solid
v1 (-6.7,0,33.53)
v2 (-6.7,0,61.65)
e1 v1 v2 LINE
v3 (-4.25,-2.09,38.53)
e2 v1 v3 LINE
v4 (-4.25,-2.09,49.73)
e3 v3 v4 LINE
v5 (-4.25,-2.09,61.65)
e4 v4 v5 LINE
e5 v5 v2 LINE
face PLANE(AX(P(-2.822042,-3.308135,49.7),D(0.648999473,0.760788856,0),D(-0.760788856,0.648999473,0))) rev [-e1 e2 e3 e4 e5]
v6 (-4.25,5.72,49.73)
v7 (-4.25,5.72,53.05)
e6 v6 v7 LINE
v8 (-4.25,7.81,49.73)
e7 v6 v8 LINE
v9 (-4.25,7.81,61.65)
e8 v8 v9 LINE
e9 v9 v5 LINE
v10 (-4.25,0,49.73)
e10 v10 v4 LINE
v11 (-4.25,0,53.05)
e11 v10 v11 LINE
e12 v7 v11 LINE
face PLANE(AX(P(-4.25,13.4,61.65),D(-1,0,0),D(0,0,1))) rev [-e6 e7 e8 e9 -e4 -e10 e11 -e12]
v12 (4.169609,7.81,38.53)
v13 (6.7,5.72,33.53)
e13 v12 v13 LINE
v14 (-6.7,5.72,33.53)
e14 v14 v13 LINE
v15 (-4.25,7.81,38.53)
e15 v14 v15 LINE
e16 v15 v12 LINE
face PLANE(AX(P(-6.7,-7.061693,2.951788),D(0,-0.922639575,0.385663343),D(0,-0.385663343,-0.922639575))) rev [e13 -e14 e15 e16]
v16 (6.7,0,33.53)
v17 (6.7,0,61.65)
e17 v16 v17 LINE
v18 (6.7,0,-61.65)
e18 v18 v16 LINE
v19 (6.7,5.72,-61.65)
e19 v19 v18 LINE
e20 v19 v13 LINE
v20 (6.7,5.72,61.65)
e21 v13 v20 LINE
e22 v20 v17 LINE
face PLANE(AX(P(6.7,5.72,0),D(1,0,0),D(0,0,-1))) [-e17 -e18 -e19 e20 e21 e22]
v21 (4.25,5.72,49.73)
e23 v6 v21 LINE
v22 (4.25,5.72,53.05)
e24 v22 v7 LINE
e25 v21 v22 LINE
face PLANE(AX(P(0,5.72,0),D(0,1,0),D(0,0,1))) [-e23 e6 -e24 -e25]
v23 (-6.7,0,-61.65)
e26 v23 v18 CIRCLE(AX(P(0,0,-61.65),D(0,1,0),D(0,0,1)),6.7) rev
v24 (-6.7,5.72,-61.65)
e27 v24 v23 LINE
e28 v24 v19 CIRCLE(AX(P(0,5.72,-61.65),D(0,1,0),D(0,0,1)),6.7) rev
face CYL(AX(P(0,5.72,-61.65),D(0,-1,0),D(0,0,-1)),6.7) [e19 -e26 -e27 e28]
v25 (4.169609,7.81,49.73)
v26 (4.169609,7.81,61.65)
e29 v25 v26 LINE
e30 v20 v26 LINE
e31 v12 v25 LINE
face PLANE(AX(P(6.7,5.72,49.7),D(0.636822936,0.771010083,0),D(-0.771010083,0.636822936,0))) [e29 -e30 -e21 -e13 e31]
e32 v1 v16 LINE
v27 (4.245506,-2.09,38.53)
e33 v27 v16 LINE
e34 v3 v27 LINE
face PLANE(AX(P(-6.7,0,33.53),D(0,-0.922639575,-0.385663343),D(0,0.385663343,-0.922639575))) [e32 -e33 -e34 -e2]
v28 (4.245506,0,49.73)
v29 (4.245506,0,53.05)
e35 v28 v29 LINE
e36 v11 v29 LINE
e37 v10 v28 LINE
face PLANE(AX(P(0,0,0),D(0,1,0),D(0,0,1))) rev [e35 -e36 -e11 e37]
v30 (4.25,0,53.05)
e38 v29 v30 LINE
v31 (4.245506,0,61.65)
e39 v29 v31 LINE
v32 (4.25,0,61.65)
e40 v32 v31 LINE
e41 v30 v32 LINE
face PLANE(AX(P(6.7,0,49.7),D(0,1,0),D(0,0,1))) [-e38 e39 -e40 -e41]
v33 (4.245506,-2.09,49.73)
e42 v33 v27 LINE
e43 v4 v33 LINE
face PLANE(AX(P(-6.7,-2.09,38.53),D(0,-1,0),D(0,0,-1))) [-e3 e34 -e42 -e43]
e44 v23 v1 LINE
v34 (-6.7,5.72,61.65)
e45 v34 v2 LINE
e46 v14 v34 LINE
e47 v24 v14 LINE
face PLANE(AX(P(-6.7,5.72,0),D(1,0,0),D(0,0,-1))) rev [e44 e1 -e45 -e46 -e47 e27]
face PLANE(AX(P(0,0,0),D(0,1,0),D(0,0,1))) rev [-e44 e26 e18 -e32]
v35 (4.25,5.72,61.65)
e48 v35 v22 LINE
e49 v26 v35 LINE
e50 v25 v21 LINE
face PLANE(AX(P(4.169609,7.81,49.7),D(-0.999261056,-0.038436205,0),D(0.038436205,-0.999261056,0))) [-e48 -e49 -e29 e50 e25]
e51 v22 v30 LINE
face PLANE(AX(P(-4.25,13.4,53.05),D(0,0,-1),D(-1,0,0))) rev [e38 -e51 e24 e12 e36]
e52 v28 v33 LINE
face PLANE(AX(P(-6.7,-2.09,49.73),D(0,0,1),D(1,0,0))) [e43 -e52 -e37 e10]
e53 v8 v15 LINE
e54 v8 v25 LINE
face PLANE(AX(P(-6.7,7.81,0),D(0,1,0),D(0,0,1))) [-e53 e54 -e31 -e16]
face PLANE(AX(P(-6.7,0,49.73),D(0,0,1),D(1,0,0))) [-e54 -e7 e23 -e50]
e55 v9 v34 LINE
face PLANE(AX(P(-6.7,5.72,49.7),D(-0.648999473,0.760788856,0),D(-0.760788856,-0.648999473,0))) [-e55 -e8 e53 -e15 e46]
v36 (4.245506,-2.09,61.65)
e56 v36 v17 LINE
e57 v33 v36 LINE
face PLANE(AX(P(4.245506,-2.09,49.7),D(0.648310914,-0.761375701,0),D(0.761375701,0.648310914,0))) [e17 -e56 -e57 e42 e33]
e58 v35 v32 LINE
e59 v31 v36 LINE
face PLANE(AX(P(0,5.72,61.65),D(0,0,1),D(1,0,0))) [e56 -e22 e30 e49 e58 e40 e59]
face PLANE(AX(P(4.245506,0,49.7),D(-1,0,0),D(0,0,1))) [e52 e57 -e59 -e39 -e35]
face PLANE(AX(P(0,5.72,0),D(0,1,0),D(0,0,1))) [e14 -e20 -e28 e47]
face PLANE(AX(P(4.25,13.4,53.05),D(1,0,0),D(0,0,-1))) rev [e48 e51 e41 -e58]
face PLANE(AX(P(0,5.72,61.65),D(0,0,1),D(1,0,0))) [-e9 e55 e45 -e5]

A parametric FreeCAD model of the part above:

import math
import FreeCAD as App
import Part
import Sketcher

doc = App.newDocument("Part")
params = doc.addObject("Spreadsheet::Sheet", "Params")
for row, (alias, value) in enumerate([
    ("sketch1_radius", "6.7 mm"),
    ("sketch1_height", "123.3 mm"),
    ("pad1_length", "5.72 mm"),
    ("sketch2_height", "16.2 mm"),
    ("sketch2_height2", "11.2 mm"),
    ("sketch2_width", "2.09 mm"),
    ("pad2_length", "13.4 mm"),
    ("sketch3_height", "16.2 mm"),
    ("sketch3_height2", "11.2 mm"),
    ("sketch3_width", "2.09 mm"),
    ("pad3_length", "13.4 mm"),
    ("sketch4_width", "8.5 mm"),
    ("sketch4_height", "8.6 mm"),
    ("pocket1_length", "13.4 mm"),
    ("sketch5_width", "2.45 mm"),
    ("sketch5_height", "2.09 mm"),
    ("pad4_length", "11.95 mm"),
    ("sketch6_width", "2.45 mm"),
    ("pad5_length", "11.95 mm"),
    ("sketch7_width", "2.45 mm"),
    ("sketch7_height", "2.09 mm"),
    ("pocket2_length", "16.5 mm"),
    ("sketch8_height", "2.09 mm"),
    ("pad6_length", "11.95 mm"),
    ("sketch9_height", "2.09 mm"),
    ("pocket3_length", "16.6 mm"),
    ("sketch10_height", "2.09 mm"),
    ("pocket4_length", "16.6 mm"),
    ("sketch11_width", "2.45 mm"),
    ("sketch11_height", "2.09 mm"),
    ("pad7_length", "11.95 mm"),
    ("sketch12_width", "2.45 mm"),
    ("sketch12_height", "2.09 mm"),
    ("pocket5_length", "16.6 mm"),
], start=1):
    params.set(f"A{row}", alias)
    params.set(f"B{row}", "=" + value)
    params.setAlias(f"B{row}", alias)

body = doc.addObject("PartDesign::Body", "Body")

sketch1 = body.newObject("Sketcher::SketchObject", "Sketch")
sketch1.AttachmentSupport = (doc.getObject("XZ_Plane"), [""])
sketch1.MapMode = "FlatFace"
sketch1.addGeometry([
    Part.LineSegment(App.Vector(-6.7, -61.65, 0), App.Vector(-6.7, 61.65, 0)),
    Part.LineSegment(App.Vector(-6.7, 61.65, 0), App.Vector(6.7, 61.65, 0)),
    Part.LineSegment(App.Vector(6.7, 61.65, 0), App.Vector(6.7, -61.65, 0)),
    Part.ArcOfCircle(Part.Circle(App.Vector(0, -61.65, 0), App.Vector(0, 0, 1), 6.7), math.radians(180), math.radians(360)),
], False)
sketch1.addConstraint([
    Sketcher.Constraint("Coincident", 0, 2, 1, 1),
    Sketcher.Constraint("Coincident", 1, 2, 2, 1),
    Sketcher.Constraint("Tangent", 2, 2, 3, 2),
    Sketcher.Constraint("Tangent", 3, 1, 0, 1),
    Sketcher.Constraint("Vertical", 0),
    Sketcher.Constraint("Horizontal", 1),
    Sketcher.Constraint("Vertical", 2),
    Sketcher.Constraint("Symmetric", 0, 2, 2, 2, -1, 1),
    Sketcher.Constraint("Radius", 3, 6.7),
    Sketcher.Constraint("DistanceY", 0, 1, 0, 2, 123.3),
])
sketch1.setExpression("Constraints[8]", "Params.sketch1_radius")
sketch1.setExpression("Constraints[9]", "Params.sketch1_height")
pad1 = body.newObject("PartDesign::Pad", "Pad")
pad1.Profile = sketch1
pad1.setExpression("Length", "Params.pad1_length")
pad1.Reversed = True

sketch2 = body.newObject("Sketcher::SketchObject", "Sketch001")
sketch2.AttachmentSupport = (doc.getObject("YZ_Plane"), [""])
sketch2.MapMode = "FlatFace"
sketch2.AttachmentOffset = App.Placement(App.Vector(0, 0, 6.7), App.Rotation())
sketch2.addGeometry([
    Part.LineSegment(App.Vector(7.81, 49.73, 0), App.Vector(5.72, 49.73, 0)),
    Part.LineSegment(App.Vector(5.72, 49.73, 0), App.Vector(5.72, 33.53, 0)),
    Part.LineSegment(App.Vector(5.72, 33.53, 0), App.Vector(7.81, 38.53, 0)),
    Part.LineSegment(App.Vector(7.81, 38.53, 0), App.Vector(7.81, 49.73, 0)),
], False)
sketch2.addConstraint([
    Sketcher.Constraint("Coincident", 0, 2, 1, 1),
    Sketcher.Constraint("Coincident", 1, 2, 2, 1),
    Sketcher.Constraint("Coincident", 2, 2, 3, 1),
    Sketcher.Constraint("Coincident", 3, 2, 0, 1),
    Sketcher.Constraint("Horizontal", 0),
    Sketcher.Constraint("Vertical", 1),
    Sketcher.Constraint("Vertical", 3),
    Sketcher.Constraint("DistanceY", 1, 2, 1, 1, 16.2),
    Sketcher.Constraint("DistanceY", 3, 1, 3, 2, 11.2),
    Sketcher.Constraint("DistanceX", 0, 2, 0, 1, 2.09),
    Sketcher.Constraint("DistanceX", -1, 1, 0, 2, 5.72),
    Sketcher.Constraint("DistanceY", -1, 1, 0, 2, 49.73),
])
sketch2.setExpression("Constraints[7]", "Params.sketch2_height")
sketch2.setExpression("Constraints[8]", "Params.sketch2_height2")
sketch2.setExpression("Constraints[9]", "Params.sketch2_width")
pad2 = body.newObject("PartDesign::Pad", "Pad001")
pad2.Profile = sketch2
pad2.setExpression("Length", "Params.pad2_length")
pad2.Reversed = True

sketch3 = body.newObject("Sketcher::SketchObject", "Sketch002")
sketch3.AttachmentSupport = (doc.getObject("YZ_Plane"), [""])
sketch3.MapMode = "FlatFace"
sketch3.AttachmentOffset = App.Placement(App.Vector(0, 0, 6.7), App.Rotation())
sketch3.addGeometry([
    Part.LineSegment(App.Vector(0, 33.53, 0), App.Vector(0, 49.73, 0)),
    Part.LineSegment(App.Vector(0, 49.73, 0), App.Vector(-2.09, 49.73, 0)),
    Part.LineSegment(App.Vector(-2.09, 49.73, 0), App.Vector(-2.09, 38.53, 0)),
    Part.LineSegment(App.Vector(-2.09, 38.53, 0), App.Vector(0, 33.53, 0)),
], False)
sketch3.addConstraint([
    Sketcher.Constraint("Coincident", 0, 2, 1, 1),
    Sketcher.Constraint("Coincident", 1, 2, 2, 1),
    Sketcher.Constraint("Coincident", 2, 2, 3, 1),
    Sketcher.Constraint("Coincident", 3, 2, 0, 1),
    Sketcher.Constraint("Vertical", 0),
    Sketcher.Constraint("Horizontal", 1),
    Sketcher.Constraint("Vertical", 2),
    Sketcher.Constraint("PointOnObject", 0, 2, -2),
    Sketcher.Constraint("DistanceY", 0, 1, 0, 2, 16.2),
    Sketcher.Constraint("DistanceY", 2, 2, 2, 1, 11.2),
    Sketcher.Constraint("DistanceX", 1, 2, 1, 1, 2.09),
    Sketcher.Constraint("DistanceY", -1, 1, 0, 2, 49.73),
])
sketch3.setExpression("Constraints[8]", "Params.sketch3_height")
sketch3.setExpression("Constraints[9]", "Params.sketch3_height2")
sketch3.setExpression("Constraints[10]", "Params.sketch3_width")
pad3 = body.newObject("PartDesign::Pad", "Pad002")
pad3.Profile = sketch3
pad3.setExpression("Length", "Params.pad3_length")
pad3.Reversed = True

sketch4 = body.newObject("Sketcher::SketchObject", "Sketch003")
sketch4.AttachmentSupport = (doc.getObject("XZ_Plane"), [""])
sketch4.MapMode = "FlatFace"
sketch4.addGeometry([
    Part.LineSegment(App.Vector(-4.25, 61.65, 0), App.Vector(-4.25, 53.05, 0)),
    Part.LineSegment(App.Vector(-4.25, 53.05, 0), App.Vector(4.25, 53.05, 0)),
    Part.LineSegment(App.Vector(4.25, 53.05, 0), App.Vector(4.25, 61.65, 0)),
    Part.LineSegment(App.Vector(4.25, 61.65, 0), App.Vector(-4.25, 61.65, 0)),
], False)
sketch4.addConstraint([
    Sketcher.Constraint("Coincident", 0, 2, 1, 1),
    Sketcher.Constraint("Coincident", 1, 2, 2, 1),
    Sketcher.Constraint("Coincident", 2, 2, 3, 1),
    Sketcher.Constraint("Coincident", 3, 2, 0, 1),
    Sketcher.Constraint("Vertical", 0),
    Sketcher.Constraint("Horizontal", 1),
    Sketcher.Constraint("Vertical", 2),
    Sketcher.Constraint("Horizontal", 3),
    Sketcher.Constraint("DistanceX", 1, 1, 1, 2, 8.5),
    Sketcher.Constraint("DistanceY", 0, 2, 0, 1, 8.6),
    Sketcher.Constraint("DistanceX", 0, 2, -1, 1, 4.25),
    Sketcher.Constraint("DistanceY", -1, 1, 0, 2, 53.05),
])
sketch4.setExpression("Constraints[8]", "Params.sketch4_width")
sketch4.setExpression("Constraints[9]", "Params.sketch4_height")
pocket1 = body.newObject("PartDesign::Pocket", "Pocket")
pocket1.Profile = sketch4
pocket1.setExpression("Length", "Params.pocket1_length")

sketch5 = body.newObject("Sketcher::SketchObject", "Sketch004")
sketch5.AttachmentSupport = (doc.getObject("XY_Plane"), [""])
sketch5.MapMode = "FlatFace"
sketch5.AttachmentOffset = App.Placement(App.Vector(0, 0, 61.65), App.Rotation())
sketch5.addGeometry([
    Part.LineSegment(App.Vector(-6.7, 5.72, 0), App.Vector(-4.25, 5.72, 0)),
    Part.LineSegment(App.Vector(-4.25, 5.72, 0), App.Vector(-4.25, 7.81, 0)),
    Part.LineSegment(App.Vector(-4.25, 7.81, 0), App.Vector(-6.7, 5.72, 0)),
], False)
sketch5.addConstraint([
    Sketcher.Constraint("Coincident", 0, 2, 1, 1),
    Sketcher.Constraint("Coincident", 1, 2, 2, 1),
    Sketcher.Constraint("Coincident", 2, 2, 0, 1),
    Sketcher.Constraint("Horizontal", 0),
    Sketcher.Constraint("Vertical", 1),
    Sketcher.Constraint("DistanceX", 0, 1, 0, 2, 2.45),
    Sketcher.Constraint("DistanceY", 1, 1, 1, 2, 2.09),
    Sketcher.Constraint("DistanceX", 2, 2, -1, 1, 6.7),
    Sketcher.Constraint("DistanceY", -1, 1, 0, 2, 5.72),
])
sketch5.setExpression("Constraints[5]", "Params.sketch5_width")
sketch5.setExpression("Constraints[6]", "Params.sketch5_height")
pad4 = body.newObject("PartDesign::Pad", "Pad003")
pad4.Profile = sketch5
pad4.setExpression("Length", "Params.pad4_length")
pad4.Reversed = True

sketch6 = body.newObject("Sketcher::SketchObject", "Sketch005")
sketch6.AttachmentSupport = (doc.getObject("XY_Plane"), [""])
sketch6.MapMode = "FlatFace"
sketch6.AttachmentOffset = App.Placement(App.Vector(0, 0, 61.65), App.Rotation())
sketch6.addGeometry([
    Part.LineSegment(App.Vector(6.7, 5.72, 0), App.Vector(4.169609, 7.81, 0)),
    Part.LineSegment(App.Vector(4.169609, 7.81, 0), App.Vector(4.25, 5.72, 0)),
    Part.LineSegment(App.Vector(4.25, 5.72, 0), App.Vector(6.7, 5.72, 0)),
], False)
sketch6.addConstraint([
    Sketcher.Constraint("Coincident", 0, 2, 1, 1),
    Sketcher.Constraint("Coincident", 1, 2, 2, 1),
    Sketcher.Constraint("Coincident", 2, 2, 0, 1),
    Sketcher.Constraint("Horizontal", 2),
    Sketcher.Constraint("DistanceX", 2, 1, 2, 2, 2.45),
    Sketcher.Constraint("DistanceX", -1, 1, 2, 2, 6.7),
    Sketcher.Constraint("DistanceY", -1, 1, 0, 2, 7.81),
    Sketcher.Constraint("DistanceY", -1, 1, 1, 2, 5.72),
    Sketcher.Constraint("DistanceX", -1, 1, 0, 2, 4.169609),
])
sketch6.setExpression("Constraints[4]", "Params.sketch6_width")
pad5 = body.newObject("PartDesign::Pad", "Pad004")
pad5.Profile = sketch6
pad5.setExpression("Length", "Params.pad5_length")
pad5.Reversed = True

sketch7 = body.newObject("Sketcher::SketchObject", "Sketch006")
sketch7.AttachmentSupport = (doc.getObject("XY_Plane"), [""])
sketch7.MapMode = "FlatFace"
sketch7.AttachmentOffset = App.Placement(App.Vector(0, 0, 49.73), App.Rotation())
sketch7.addGeometry([
    Part.LineSegment(App.Vector(-6.7, 7.81, 0), App.Vector(-6.7, 5.72, 0)),
    Part.LineSegment(App.Vector(-6.7, 5.72, 0), App.Vector(-4.25, 7.81, 0)),
    Part.LineSegment(App.Vector(-4.25, 7.81, 0), App.Vector(-6.7, 7.81, 0)),
], False)
sketch7.addConstraint([
    Sketcher.Constraint("Coincident", 0, 2, 1, 1),
    Sketcher.Constraint("Coincident", 1, 2, 2, 1),
    Sketcher.Constraint("Coincident", 2, 2, 0, 1),
    Sketcher.Constraint("Vertical", 0),
    Sketcher.Constraint("Horizontal", 2),
    Sketcher.Constraint("DistanceX", 2, 2, 2, 1, 2.45),
    Sketcher.Constraint("DistanceY", 0, 2, 0, 1, 2.09),
    Sketcher.Constraint("DistanceX", 0, 2, -1, 1, 6.7),
    Sketcher.Constraint("DistanceY", -1, 1, 0, 2, 5.72),
])
sketch7.setExpression("Constraints[5]", "Params.sketch7_width")
sketch7.setExpression("Constraints[6]", "Params.sketch7_height")
pocket2 = body.newObject("PartDesign::Pocket", "Pocket001")
pocket2.Profile = sketch7
pocket2.setExpression("Length", "Params.pocket2_length")

sketch8 = body.newObject("Sketcher::SketchObject", "Sketch007")
sketch8.AttachmentSupport = (doc.getObject("XY_Plane"), [""])
sketch8.MapMode = "FlatFace"
sketch8.AttachmentOffset = App.Placement(App.Vector(0, 0, 61.65), App.Rotation())
sketch8.addGeometry([
    Part.LineSegment(App.Vector(4.245506, 0, 0), App.Vector(4.245506, -2.09, 0)),
    Part.LineSegment(App.Vector(4.245506, -2.09, 0), App.Vector(6.7, 0, 0)),
    Part.LineSegment(App.Vector(6.7, 0, 0), App.Vector(4.245506, 0, 0)),
], False)
sketch8.addConstraint([
    Sketcher.Constraint("Coincident", 0, 2, 1, 1),
    Sketcher.Constraint("Coincident", 1, 2, 2, 1),
    Sketcher.Constraint("Coincident", 2, 2, 0, 1),
    Sketcher.Constraint("Vertical", 0),
    Sketcher.Constraint("Horizontal", 2),
    Sketcher.Constraint("PointOnObject", 1, 2, -1),
    Sketcher.Constraint("DistanceY", 0, 2, 0, 1, 2.09),
    Sketcher.Constraint("DistanceX", -1, 1, 1, 2, 6.7),
    Sketcher.Constraint("Distance", 1, 3.223762),
])
sketch8.setExpression("Constraints[6]", "Params.sketch8_height")
pad6 = body.newObject("PartDesign::Pad", "Pad005")
pad6.Profile = sketch8
pad6.setExpression("Length", "Params.pad6_length")
pad6.Reversed = True

sketch9 = body.newObject("Sketcher::SketchObject", "Sketch008")
sketch9.AttachmentSupport = (doc.getObject("XY_Plane"), [""])
sketch9.MapMode = "FlatFace"
sketch9.AttachmentOffset = App.Placement(App.Vector(0, 0, 49.73), App.Rotation())
sketch9.addGeometry([
    Part.LineSegment(App.Vector(6.7, 0, 0), App.Vector(4.245506, -2.09, 0)),
    Part.LineSegment(App.Vector(4.245506, -2.09, 0), App.Vector(6.7, -2.09, 0)),
    Part.LineSegment(App.Vector(6.7, -2.09, 0), App.Vector(6.7, 0, 0)),
], False)
sketch9.addConstraint([
    Sketcher.Constraint("Coincident", 0, 2, 1, 1),
    Sketcher.Constraint("Coincident", 1, 2, 2, 1),
    Sketcher.Constraint("Coincident", 2, 2, 0, 1),
    Sketcher.Constraint("Horizontal", 1),
    Sketcher.Constraint("Vertical", 2),
    Sketcher.Constraint("PointOnObject", 2, 2, -1),
    Sketcher.Constraint("DistanceY", 2, 1, 2, 2, 2.09),
    Sketcher.Constraint("DistanceX", -1, 1, 1, 2, 6.7),
    Sketcher.Constraint("Distance", 0, 3.223762),
])
sketch9.setExpression("Constraints[6]", "Params.sketch9_height")
pocket3 = body.newObject("PartDesign::Pocket", "Pocket002")
pocket3.Profile = sketch9
pocket3.setExpression("Length", "Params.pocket3_length")

sketch10 = body.newObject("Sketcher::SketchObject", "Sketch009")
sketch10.AttachmentSupport = (doc.getObject("XY_Plane"), [""])
sketch10.MapMode = "FlatFace"
sketch10.AttachmentOffset = App.Placement(App.Vector(0, 0, 49.73), App.Rotation())
sketch10.addGeometry([
    Part.LineSegment(App.Vector(6.7, 7.81, 0), App.Vector(4.169609, 7.81, 0)),
    Part.LineSegment(App.Vector(4.169609, 7.81, 0), App.Vector(6.7, 5.72, 0)),
    Part.LineSegment(App.Vector(6.7, 5.72, 0), App.Vector(6.7, 7.81, 0)),
], False)
sketch10.addConstraint([
    Sketcher.Constraint("Coincident", 0, 2, 1, 1),
    Sketcher.Constraint("Coincident", 1, 2, 2, 1),
    Sketcher.Constraint("Coincident", 2, 2, 0, 1),
    Sketcher.Constraint("Horizontal", 0),
    Sketcher.Constraint("Vertical", 2),
    Sketcher.Constraint("DistanceY", 2, 1, 2, 2, 2.09),
    Sketcher.Constraint("DistanceX", -1, 1, 1, 2, 6.7),
    Sketcher.Constraint("DistanceY", -1, 1, 0, 2, 7.81),
    Sketcher.Constraint("DistanceX", 0, 2, 0, 1, 2.530391),
])
sketch10.setExpression("Constraints[5]", "Params.sketch10_height")
pocket4 = body.newObject("PartDesign::Pocket", "Pocket003")
pocket4.Profile = sketch10
pocket4.setExpression("Length", "Params.pocket4_length")

sketch11 = body.newObject("Sketcher::SketchObject", "Sketch010")
sketch11.AttachmentSupport = (doc.getObject("XY_Plane"), [""])
sketch11.MapMode = "FlatFace"
sketch11.AttachmentOffset = App.Placement(App.Vector(0, 0, 61.65), App.Rotation())
sketch11.addGeometry([
    Part.LineSegment(App.Vector(-6.7, 0, 0), App.Vector(-4.25, -2.09, 0)),
    Part.LineSegment(App.Vector(-4.25, -2.09, 0), App.Vector(-4.25, 0, 0)),
    Part.LineSegment(App.Vector(-4.25, 0, 0), App.Vector(-6.7, 0, 0)),
], False)
sketch11.addConstraint([
    Sketcher.Constraint("Coincident", 0, 2, 1, 1),
    Sketcher.Constraint("Coincident", 1, 2, 2, 1),
    Sketcher.Constraint("Coincident", 2, 2, 0, 1),
    Sketcher.Constraint("Vertical", 1),
    Sketcher.Constraint("Horizontal", 2),
    Sketcher.Constraint("PointOnObject", 1, 2, -1),
    Sketcher.Constraint("DistanceX", 2, 2, 2, 1, 2.45),
    Sketcher.Constraint("DistanceY", 1, 1, 1, 2, 2.09),
    Sketcher.Constraint("DistanceX", 2, 2, -1, 1, 6.7),
])
sketch11.setExpression("Constraints[6]", "Params.sketch11_width")
sketch11.setExpression("Constraints[7]", "Params.sketch11_height")
pad7 = body.newObject("PartDesign::Pad", "Pad006")
pad7.Profile = sketch11
pad7.setExpression("Length", "Params.pad7_length")
pad7.Reversed = True

sketch12 = body.newObject("Sketcher::SketchObject", "Sketch011")
sketch12.AttachmentSupport = (doc.getObject("XY_Plane"), [""])
sketch12.MapMode = "FlatFace"
sketch12.AttachmentOffset = App.Placement(App.Vector(0, 0, 49.73), App.Rotation())
sketch12.addGeometry([
    Part.LineSegment(App.Vector(-6.7, 0, 0), App.Vector(-6.7, -2.09, 0)),
    Part.LineSegment(App.Vector(-6.7, -2.09, 0), App.Vector(-4.25, -2.09, 0)),
    Part.LineSegment(App.Vector(-4.25, -2.09, 0), App.Vector(-6.7, 0, 0)),
], False)
sketch12.addConstraint([
    Sketcher.Constraint("Coincident", 0, 2, 1, 1),
    Sketcher.Constraint("Coincident", 1, 2, 2, 1),
    Sketcher.Constraint("Coincident", 2, 2, 0, 1),
    Sketcher.Constraint("Vertical", 0),
    Sketcher.Constraint("Horizontal", 1),
    Sketcher.Constraint("PointOnObject", 2, 2, -1),
    Sketcher.Constraint("DistanceX", 1, 1, 1, 2, 2.45),
    Sketcher.Constraint("DistanceY", 0, 2, 0, 1, 2.09),
    Sketcher.Constraint("DistanceX", 0, 2, -1, 1, 6.7),
])
sketch12.setExpression("Constraints[6]", "Params.sketch12_width")
sketch12.setExpression("Constraints[7]", "Params.sketch12_height")
pocket5 = body.newObject("PartDesign::Pocket", "Pocket004")
pocket5.Profile = sketch12
pocket5.setExpression("Length", "Params.pocket5_length")

doc.recompute()
